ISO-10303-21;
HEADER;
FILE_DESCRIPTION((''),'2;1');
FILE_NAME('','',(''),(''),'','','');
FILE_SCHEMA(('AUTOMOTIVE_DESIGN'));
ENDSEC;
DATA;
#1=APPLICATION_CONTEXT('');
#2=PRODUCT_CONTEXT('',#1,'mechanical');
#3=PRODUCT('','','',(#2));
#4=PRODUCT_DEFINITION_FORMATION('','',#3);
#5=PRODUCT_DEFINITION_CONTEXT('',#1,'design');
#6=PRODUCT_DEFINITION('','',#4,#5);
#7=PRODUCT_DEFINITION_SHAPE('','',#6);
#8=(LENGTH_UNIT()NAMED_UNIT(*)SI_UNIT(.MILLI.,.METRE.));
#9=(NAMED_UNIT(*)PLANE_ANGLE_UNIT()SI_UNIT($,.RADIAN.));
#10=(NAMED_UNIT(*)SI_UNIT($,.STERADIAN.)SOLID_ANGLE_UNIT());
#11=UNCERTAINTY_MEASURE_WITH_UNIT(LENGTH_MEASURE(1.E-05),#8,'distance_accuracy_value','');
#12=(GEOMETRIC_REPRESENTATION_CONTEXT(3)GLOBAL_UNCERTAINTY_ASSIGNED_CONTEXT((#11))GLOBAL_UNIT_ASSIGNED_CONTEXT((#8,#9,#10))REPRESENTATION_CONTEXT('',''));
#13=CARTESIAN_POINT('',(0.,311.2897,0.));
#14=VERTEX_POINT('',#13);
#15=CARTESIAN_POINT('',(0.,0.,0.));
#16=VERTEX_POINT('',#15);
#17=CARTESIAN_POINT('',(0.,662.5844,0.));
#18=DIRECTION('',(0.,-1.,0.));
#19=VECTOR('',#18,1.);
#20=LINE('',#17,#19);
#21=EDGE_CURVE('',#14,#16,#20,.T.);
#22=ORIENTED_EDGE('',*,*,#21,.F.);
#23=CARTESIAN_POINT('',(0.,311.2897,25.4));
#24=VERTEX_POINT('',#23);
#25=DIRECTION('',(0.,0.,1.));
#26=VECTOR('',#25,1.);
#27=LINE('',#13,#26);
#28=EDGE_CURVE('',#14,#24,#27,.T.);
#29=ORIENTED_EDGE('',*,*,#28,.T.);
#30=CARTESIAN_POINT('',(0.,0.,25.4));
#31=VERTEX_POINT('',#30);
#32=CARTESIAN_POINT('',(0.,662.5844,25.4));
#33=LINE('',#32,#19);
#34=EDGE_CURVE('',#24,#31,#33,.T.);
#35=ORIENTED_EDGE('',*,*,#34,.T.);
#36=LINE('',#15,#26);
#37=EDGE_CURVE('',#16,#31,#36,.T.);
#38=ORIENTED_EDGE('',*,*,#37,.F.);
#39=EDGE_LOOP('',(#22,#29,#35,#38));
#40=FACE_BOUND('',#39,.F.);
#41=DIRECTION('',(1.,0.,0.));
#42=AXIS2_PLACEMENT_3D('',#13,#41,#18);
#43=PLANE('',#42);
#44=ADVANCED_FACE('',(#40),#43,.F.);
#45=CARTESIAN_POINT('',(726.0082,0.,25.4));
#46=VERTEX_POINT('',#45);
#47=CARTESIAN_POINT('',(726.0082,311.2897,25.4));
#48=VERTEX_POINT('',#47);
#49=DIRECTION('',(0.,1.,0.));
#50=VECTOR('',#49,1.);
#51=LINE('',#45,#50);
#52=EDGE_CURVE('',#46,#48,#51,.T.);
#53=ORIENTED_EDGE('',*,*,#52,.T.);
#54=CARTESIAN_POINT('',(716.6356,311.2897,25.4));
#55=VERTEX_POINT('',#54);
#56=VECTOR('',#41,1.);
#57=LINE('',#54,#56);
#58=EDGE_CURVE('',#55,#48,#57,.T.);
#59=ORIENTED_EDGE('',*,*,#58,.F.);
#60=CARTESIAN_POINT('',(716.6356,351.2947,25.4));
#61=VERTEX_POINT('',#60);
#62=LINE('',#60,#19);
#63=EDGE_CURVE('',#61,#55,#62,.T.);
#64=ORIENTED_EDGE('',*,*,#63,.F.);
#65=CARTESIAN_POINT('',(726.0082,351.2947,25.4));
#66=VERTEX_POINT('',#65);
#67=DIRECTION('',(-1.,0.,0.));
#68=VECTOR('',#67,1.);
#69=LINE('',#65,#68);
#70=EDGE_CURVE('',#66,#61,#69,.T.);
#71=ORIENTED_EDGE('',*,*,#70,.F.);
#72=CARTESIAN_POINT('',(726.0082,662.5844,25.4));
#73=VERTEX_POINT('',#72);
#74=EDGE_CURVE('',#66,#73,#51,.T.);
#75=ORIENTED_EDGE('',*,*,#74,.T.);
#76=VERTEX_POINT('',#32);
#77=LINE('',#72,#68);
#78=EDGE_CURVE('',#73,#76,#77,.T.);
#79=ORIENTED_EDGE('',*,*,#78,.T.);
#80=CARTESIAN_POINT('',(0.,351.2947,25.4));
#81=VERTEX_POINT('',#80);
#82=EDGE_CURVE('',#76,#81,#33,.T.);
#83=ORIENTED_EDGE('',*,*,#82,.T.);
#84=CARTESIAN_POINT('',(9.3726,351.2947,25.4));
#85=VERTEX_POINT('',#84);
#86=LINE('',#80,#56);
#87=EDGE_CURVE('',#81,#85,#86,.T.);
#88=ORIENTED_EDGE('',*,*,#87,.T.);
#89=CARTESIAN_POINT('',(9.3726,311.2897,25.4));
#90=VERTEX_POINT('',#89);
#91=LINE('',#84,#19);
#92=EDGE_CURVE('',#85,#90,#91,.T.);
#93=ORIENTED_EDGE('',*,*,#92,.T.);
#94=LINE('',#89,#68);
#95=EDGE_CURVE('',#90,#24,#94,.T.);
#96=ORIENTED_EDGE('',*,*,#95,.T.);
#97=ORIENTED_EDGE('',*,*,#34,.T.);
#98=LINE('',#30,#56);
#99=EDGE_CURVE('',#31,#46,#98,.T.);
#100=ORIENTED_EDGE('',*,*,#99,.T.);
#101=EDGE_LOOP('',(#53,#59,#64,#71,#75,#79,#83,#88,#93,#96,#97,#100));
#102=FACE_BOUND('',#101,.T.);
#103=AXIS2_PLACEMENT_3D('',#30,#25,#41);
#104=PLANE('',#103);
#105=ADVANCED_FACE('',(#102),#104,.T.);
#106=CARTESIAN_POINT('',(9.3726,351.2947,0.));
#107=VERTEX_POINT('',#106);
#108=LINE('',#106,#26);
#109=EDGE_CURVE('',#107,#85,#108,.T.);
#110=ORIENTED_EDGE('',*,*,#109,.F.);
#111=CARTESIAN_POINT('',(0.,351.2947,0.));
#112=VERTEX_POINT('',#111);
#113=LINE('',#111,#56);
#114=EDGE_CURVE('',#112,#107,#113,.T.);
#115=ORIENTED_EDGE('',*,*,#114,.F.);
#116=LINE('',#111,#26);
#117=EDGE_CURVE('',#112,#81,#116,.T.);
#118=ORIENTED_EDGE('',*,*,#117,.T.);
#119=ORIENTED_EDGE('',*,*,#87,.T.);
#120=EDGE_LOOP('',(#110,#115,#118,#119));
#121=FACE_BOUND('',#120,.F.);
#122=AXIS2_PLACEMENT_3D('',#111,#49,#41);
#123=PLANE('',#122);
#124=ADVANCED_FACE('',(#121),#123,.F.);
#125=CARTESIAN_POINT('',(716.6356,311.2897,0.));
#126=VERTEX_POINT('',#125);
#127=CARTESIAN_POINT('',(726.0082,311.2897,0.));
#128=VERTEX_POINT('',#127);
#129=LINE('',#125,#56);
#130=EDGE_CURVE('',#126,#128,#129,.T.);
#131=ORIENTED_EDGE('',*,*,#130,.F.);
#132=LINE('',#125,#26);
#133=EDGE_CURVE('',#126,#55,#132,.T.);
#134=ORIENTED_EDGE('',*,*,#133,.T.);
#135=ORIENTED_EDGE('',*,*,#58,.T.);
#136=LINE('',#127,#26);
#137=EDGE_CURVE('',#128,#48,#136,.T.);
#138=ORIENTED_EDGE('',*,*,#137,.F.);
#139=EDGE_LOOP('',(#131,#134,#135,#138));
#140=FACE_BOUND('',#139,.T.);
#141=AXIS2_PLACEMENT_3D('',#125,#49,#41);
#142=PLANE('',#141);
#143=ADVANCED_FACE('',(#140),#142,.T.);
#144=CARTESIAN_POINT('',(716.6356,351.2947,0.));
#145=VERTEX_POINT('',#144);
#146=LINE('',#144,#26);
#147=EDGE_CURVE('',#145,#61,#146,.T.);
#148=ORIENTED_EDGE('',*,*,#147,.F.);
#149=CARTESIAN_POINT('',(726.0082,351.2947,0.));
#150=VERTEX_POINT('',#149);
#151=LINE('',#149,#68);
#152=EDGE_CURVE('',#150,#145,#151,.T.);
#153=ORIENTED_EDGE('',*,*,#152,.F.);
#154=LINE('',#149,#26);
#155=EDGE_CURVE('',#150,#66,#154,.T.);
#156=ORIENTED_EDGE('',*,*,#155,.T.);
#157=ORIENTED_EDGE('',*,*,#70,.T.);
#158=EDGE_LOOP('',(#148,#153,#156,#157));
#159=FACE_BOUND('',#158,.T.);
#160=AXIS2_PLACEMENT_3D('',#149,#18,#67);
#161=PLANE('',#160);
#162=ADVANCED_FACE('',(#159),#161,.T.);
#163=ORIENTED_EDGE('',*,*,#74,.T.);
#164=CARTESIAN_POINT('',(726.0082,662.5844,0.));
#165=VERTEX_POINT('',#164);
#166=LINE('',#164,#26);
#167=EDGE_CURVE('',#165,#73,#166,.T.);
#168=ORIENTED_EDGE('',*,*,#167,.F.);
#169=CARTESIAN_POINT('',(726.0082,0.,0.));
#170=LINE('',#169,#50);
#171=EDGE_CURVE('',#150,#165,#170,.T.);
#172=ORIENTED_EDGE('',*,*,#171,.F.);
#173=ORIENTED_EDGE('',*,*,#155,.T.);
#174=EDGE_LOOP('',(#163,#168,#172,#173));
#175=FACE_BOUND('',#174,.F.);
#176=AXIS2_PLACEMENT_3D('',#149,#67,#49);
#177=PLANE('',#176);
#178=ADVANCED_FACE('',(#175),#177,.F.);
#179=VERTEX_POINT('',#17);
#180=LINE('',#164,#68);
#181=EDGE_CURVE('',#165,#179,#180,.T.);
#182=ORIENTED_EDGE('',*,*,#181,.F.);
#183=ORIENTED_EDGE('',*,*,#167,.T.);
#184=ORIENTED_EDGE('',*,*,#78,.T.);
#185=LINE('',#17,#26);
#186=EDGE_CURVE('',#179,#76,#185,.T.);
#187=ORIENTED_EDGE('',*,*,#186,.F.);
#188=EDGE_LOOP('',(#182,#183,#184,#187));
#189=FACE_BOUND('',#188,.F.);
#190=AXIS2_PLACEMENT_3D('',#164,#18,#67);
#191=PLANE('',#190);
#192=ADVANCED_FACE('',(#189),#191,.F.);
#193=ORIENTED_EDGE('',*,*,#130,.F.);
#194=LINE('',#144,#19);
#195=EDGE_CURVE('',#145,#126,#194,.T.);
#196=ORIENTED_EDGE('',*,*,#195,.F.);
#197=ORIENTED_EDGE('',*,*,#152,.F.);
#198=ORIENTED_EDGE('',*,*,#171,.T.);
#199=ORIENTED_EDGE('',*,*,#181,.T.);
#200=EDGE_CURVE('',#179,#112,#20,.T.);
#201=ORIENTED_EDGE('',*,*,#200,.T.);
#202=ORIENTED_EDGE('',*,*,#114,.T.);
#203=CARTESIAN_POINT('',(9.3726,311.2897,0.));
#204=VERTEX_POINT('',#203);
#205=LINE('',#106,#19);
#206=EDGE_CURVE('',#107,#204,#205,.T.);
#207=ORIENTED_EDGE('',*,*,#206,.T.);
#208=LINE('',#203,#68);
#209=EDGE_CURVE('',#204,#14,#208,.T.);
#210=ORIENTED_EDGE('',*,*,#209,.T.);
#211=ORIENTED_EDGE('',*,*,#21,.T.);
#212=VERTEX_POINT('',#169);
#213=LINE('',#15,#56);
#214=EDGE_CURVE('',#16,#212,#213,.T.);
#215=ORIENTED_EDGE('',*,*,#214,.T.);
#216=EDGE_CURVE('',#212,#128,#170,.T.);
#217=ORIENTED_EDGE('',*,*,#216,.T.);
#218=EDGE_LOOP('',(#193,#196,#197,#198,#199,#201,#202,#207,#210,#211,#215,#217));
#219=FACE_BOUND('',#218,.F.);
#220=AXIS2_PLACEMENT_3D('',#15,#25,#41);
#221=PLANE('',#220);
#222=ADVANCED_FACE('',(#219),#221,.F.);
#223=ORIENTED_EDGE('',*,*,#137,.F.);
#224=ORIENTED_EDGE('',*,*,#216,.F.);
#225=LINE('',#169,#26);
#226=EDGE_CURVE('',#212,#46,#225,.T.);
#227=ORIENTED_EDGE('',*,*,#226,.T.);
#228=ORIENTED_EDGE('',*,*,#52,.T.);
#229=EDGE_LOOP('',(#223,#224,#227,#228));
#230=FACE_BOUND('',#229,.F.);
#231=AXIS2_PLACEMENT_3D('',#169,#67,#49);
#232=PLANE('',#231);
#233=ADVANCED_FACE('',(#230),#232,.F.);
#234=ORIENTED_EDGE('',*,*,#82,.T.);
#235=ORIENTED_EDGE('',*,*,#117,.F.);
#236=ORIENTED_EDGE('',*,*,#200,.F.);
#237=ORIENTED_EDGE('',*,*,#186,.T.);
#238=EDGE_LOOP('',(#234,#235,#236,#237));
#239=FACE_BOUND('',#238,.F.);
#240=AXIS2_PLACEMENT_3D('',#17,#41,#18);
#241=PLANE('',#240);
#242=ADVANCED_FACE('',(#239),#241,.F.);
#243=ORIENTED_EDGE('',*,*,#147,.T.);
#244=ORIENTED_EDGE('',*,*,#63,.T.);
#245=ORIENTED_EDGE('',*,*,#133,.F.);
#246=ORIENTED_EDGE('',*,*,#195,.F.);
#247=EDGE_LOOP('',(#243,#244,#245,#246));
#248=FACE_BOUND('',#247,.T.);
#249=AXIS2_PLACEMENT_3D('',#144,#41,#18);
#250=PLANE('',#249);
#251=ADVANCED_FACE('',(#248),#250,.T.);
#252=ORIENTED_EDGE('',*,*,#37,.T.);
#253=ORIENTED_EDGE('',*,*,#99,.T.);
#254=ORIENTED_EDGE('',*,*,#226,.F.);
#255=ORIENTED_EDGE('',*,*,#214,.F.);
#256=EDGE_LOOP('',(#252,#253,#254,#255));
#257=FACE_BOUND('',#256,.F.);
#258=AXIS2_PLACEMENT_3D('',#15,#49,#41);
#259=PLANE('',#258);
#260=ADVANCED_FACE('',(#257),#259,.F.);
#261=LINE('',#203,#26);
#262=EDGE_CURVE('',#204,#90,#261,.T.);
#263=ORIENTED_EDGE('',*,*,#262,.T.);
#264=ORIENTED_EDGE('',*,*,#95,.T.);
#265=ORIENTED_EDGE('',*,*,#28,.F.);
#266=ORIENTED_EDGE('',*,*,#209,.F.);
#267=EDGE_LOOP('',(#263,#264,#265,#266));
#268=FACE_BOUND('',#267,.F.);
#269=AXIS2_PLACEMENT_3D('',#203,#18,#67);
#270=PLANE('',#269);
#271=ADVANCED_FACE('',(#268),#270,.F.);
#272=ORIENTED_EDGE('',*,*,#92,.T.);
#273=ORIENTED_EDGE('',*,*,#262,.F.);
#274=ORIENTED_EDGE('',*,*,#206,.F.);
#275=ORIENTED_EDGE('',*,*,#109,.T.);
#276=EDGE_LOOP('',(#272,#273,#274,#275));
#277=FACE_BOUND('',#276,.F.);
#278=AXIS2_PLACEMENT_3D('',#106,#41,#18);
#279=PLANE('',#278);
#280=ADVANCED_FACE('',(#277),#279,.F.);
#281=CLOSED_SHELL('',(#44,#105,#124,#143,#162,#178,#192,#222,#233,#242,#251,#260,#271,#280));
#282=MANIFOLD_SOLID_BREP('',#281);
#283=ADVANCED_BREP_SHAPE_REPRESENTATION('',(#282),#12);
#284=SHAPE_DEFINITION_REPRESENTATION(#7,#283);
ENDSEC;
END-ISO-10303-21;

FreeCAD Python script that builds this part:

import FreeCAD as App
import Part
import Sketcher
Q = App.Units.Quantity

doc = App.newDocument("Part")
body = doc.addObject("PartDesign::Body", "Body")

# Sketch on XY plane
sketch1 = body.newObject("Sketcher::SketchObject", "Sketch")
sketch1.AttachmentSupport = (doc.getObject("XY_Plane"), [""])
sketch1.MapMode = "FlatFace"
sketch1.addGeometry(Part.LineSegment(App.Vector(0, 311, 0), App.Vector(0, 0, 0)), False)
sketch1.addGeometry(Part.LineSegment(App.Vector(0, 0, 0), App.Vector(726, 0, 0)), False)
sketch1.addGeometry(Part.LineSegment(App.Vector(726, 0, 0), App.Vector(726, 311, 0)), False)
sketch1.addGeometry(Part.LineSegment(App.Vector(726, 311, 0), App.Vector(717, 311, 0)), False)
sketch1.addGeometry(Part.LineSegment(App.Vector(717, 311, 0), App.Vector(717, 351, 0)), False)
sketch1.addGeometry(Part.LineSegment(App.Vector(717, 351, 0), App.Vector(726, 351, 0)), False)
sketch1.addGeometry(Part.LineSegment(App.Vector(726, 351, 0), App.Vector(726, 663, 0)), False)
sketch1.addGeometry(Part.LineSegment(App.Vector(726, 663, 0), App.Vector(0, 663, 0)), False)
sketch1.addGeometry(Part.LineSegment(App.Vector(0, 663, 0), App.Vector(0, 351, 0)), False)
sketch1.addGeometry(Part.LineSegment(App.Vector(0, 351, 0), App.Vector(9, 351, 0)), False)
sketch1.addGeometry(Part.LineSegment(App.Vector(9, 351, 0), App.Vector(9, 311, 0)), False)
sketch1.addGeometry(Part.LineSegment(App.Vector(9, 311, 0), App.Vector(0, 311, 0)), False)
sketch1.addConstraint(Sketcher.Constraint("Coincident", 0, 2, 1, 1))
sketch1.addConstraint(Sketcher.Constraint("Coincident", 1, 2, 2, 1))
sketch1.addConstraint(Sketcher.Constraint("Coincident", 2, 2, 3, 1))
sketch1.addConstraint(Sketcher.Constraint("Coincident", 3, 2, 4, 1))
sketch1.addConstraint(Sketcher.Constraint("Coincident", 4, 2, 5, 1))
sketch1.addConstraint(Sketcher.Constraint("Coincident", 5, 2, 6, 1))
sketch1.addConstraint(Sketcher.Constraint("Coincident", 6, 2, 7, 1))
sketch1.addConstraint(Sketcher.Constraint("Coincident", 7, 2, 8, 1))
sketch1.addConstraint(Sketcher.Constraint("Coincident", 8, 2, 9, 1))
sketch1.addConstraint(Sketcher.Constraint("Coincident", 9, 2, 10, 1))
sketch1.addConstraint(Sketcher.Constraint("Coincident", 10, 2, 11, 1))
sketch1.addConstraint(Sketcher.Constraint("Coincident", 11, 2, 0, 1))
sketch1.addConstraint(Sketcher.Constraint("Vertical", 0))
sketch1.addConstraint(Sketcher.Constraint("Horizontal", 1))
sketch1.addConstraint(Sketcher.Constraint("Vertical", 2))
sketch1.addConstraint(Sketcher.Constraint("Horizontal", 3))
sketch1.addConstraint(Sketcher.Constraint("Vertical", 4))
sketch1.addConstraint(Sketcher.Constraint("Horizontal", 5))
sketch1.addConstraint(Sketcher.Constraint("Vertical", 6))
sketch1.addConstraint(Sketcher.Constraint("Horizontal", 7))
sketch1.addConstraint(Sketcher.Constraint("Vertical", 8))
sketch1.addConstraint(Sketcher.Constraint("Horizontal", 9))
sketch1.addConstraint(Sketcher.Constraint("Vertical", 10))
sketch1.addConstraint(Sketcher.Constraint("Horizontal", 11))
sketch1.addConstraint(Sketcher.Constraint("Coincident", 0, 2, -1, 1))
sketch1.addConstraint(Sketcher.Constraint("PointOnObject", 7, 2, -2))
sketch1.addConstraint(Sketcher.Constraint("Horizontal", 5, 2, 8, 2))
sketch1.addConstraint(Sketcher.Constraint("Horizontal", 3, 2, 10, 2))
sketch1.addConstraint(Sketcher.Constraint("Vertical", 2, 2, 5, 2))
sketch1.addConstraint(Sketcher.Constraint("Equal", 5, 9))
sketch1.addConstraint(Sketcher.Constraint("Equal", 2, 6))
sketch1.addConstraint(Sketcher.Constraint("DistanceX", 1, 1, 1, 2, Q("28.583 in")))
sketch1.addConstraint(Sketcher.Constraint("DistanceX", 3, 2, 3, 1, Q("0.369 in")))
sketch1.addConstraint(Sketcher.Constraint("DistanceY", 4, 1, 4, 2, Q("1.575 in")))
sketch1.addConstraint(Sketcher.Constraint("DistanceY", -1, 1, 6, 2, Q("26.086 in")))
pad1 = body.newObject("PartDesign::Pad", "Pad")
pad1.Profile = sketch1
pad1.Length = Q("1 in")

doc.recompute()
